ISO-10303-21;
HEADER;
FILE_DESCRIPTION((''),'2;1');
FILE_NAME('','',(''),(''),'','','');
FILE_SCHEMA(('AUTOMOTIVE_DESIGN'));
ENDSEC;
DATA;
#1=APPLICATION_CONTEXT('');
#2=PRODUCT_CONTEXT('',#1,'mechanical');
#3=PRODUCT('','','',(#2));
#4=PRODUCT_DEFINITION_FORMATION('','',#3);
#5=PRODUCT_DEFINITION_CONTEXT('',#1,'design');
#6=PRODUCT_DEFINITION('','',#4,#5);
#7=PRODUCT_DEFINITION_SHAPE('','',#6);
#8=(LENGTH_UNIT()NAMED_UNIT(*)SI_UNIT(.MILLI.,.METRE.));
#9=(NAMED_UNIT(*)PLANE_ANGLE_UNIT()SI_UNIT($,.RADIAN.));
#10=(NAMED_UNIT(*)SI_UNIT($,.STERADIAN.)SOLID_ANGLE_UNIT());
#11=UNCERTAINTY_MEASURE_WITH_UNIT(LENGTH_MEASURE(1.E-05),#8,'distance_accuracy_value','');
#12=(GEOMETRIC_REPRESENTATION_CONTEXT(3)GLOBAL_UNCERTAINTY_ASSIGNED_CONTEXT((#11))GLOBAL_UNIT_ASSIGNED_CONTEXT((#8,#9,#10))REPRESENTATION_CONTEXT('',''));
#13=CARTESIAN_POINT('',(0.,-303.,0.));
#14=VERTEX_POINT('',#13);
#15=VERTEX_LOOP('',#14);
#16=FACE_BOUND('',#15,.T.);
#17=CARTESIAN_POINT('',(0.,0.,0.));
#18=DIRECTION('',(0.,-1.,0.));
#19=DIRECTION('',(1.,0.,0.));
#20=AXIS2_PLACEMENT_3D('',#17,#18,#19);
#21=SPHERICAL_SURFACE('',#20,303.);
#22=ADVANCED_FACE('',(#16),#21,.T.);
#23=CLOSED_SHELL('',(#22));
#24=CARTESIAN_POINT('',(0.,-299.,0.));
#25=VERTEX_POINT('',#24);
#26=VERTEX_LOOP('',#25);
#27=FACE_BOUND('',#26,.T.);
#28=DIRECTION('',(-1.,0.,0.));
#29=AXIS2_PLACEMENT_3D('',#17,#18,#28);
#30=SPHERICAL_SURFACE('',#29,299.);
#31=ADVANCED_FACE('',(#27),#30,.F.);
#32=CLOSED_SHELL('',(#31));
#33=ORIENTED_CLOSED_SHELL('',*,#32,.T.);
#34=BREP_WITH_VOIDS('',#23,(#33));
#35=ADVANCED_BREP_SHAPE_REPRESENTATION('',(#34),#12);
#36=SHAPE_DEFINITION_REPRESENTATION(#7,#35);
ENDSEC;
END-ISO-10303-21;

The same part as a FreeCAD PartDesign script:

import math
import FreeCAD as App
import Part
import Sketcher
from FreeCAD import Vector
Q = App.Units.Quantity

doc = App.newDocument("Part")
body = doc.addObject("PartDesign::Body", "Body")

# Sketch on XY plane
sketch1 = doc.addObject("Sketcher::SketchObject", "Sketch")
body.addObject(sketch1)
sketch1.AttachmentSupport = (doc.XY_Plane, [""])
sketch1.MapMode = "FlatFace"
sketch1.addGeometry([
    Part.LineSegment(Vector(0, 299, 0), Vector(0, 303, 0)),
    Part.ArcOfCircle(Part.Circle(Vector(0, 0, 0), Vector(0, 0, 1), 303), math.radians(90), math.radians(270)),
    Part.LineSegment(Vector(0, -303, 0), Vector(0, -299, 0)),
    Part.ArcOfCircle(Part.Circle(Vector(0, 0, 0), Vector(0, 0, 1), 299), math.radians(90), math.radians(270)),
], False)
sketch1.addConstraint([
    Sketcher.Constraint("Coincident", 0, 2, 1, 1),
    Sketcher.Constraint("Coincident", 1, 2, 2, 1),
    Sketcher.Constraint("Coincident", 2, 2, 3, 2),
    Sketcher.Constraint("Coincident", 3, 1, 0, 1),
    Sketcher.Constraint("Vertical", 0),
    Sketcher.Constraint("Vertical", 2),
    Sketcher.Constraint("Coincident", 1, 3, -1, 1),
    Sketcher.Constraint("Coincident", 3, 3, -1, 1),
    Sketcher.Constraint("PointOnObject", 0, 2, -2),
    Sketcher.Constraint("PointOnObject", 1, 2, -2),
    Sketcher.Constraint("Radius", 1, Q("303 mm")),
    Sketcher.Constraint("Radius", 3, Q("299 mm")),
])
revolution = doc.addObject("PartDesign::Revolution", "Revolution")
body.addObject(revolution)
revolution.Profile = sketch1
revolution.ReferenceAxis = (sketch1, ["V_Axis"])
revolution.Angle = 360

doc.recompute()
